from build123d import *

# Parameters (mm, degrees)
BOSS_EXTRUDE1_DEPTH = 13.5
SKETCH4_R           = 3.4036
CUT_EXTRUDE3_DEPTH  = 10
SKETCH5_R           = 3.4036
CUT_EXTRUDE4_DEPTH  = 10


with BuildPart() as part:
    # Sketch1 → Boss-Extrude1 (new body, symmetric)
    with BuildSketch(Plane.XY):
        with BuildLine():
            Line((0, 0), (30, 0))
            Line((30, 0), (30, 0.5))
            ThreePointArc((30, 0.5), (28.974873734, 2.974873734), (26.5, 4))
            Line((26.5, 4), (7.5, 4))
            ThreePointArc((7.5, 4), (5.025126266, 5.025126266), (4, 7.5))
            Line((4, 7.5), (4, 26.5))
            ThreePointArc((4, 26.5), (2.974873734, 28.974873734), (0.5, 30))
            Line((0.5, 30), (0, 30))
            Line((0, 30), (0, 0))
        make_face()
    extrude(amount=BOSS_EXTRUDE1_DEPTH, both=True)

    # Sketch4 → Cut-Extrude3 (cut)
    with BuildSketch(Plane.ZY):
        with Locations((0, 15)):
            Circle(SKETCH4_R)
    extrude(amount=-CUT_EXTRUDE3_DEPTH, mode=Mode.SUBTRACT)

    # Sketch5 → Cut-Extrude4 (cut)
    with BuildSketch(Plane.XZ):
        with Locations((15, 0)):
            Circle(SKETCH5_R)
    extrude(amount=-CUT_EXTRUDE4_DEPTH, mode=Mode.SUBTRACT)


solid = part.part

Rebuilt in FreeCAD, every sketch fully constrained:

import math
import FreeCAD as App
import Part
import Sketcher
from FreeCAD import Vector
Q = App.Units.Quantity

doc = App.newDocument("Part")
body = doc.addObject("PartDesign::Body", "Body")

# Sketch on XY plane
sketch1 = doc.addObject("Sketcher::SketchObject", "Sketch")
body.addObject(sketch1)
sketch1.AttachmentSupport = (doc.XY_Plane, [""])
sketch1.MapMode = "FlatFace"
sketch1.addGeometry([
    Part.LineSegment(Vector(0, 0, 0), Vector(30, 0, 0)),  # 0
    Part.LineSegment(Vector(30, 0, 0), Vector(30, 0.5, 0)),  # 1
    Part.ArcOfCircle(Part.Circle(Vector(26.5, 0.5, 0), Vector(0, 0, 1), 3.5), math.radians(0), math.radians(90)),  # 2
    Part.LineSegment(Vector(26.5, 4, 0), Vector(7.5, 4, 0)),  # 3
    Part.ArcOfCircle(Part.Circle(Vector(7.5, 7.5, 0), Vector(0, 0, 1), 3.5), math.radians(-180), math.radians(-90)),  # 4
    Part.LineSegment(Vector(4, 7.5, 0), Vector(4, 26.5, 0)),  # 5
    Part.ArcOfCircle(Part.Circle(Vector(0.5, 26.5, 0), Vector(0, 0, 1), 3.5), math.radians(0), math.radians(90)),  # 6
    Part.LineSegment(Vector(0.5, 30, 0), Vector(0, 30, 0)),  # 7
    Part.LineSegment(Vector(0, 30, 0), Vector(0, 0, 0)),  # 8
], False)
sketch1.addConstraint([
    Sketcher.Constraint("Coincident", 0, 2, 1, 1),
    Sketcher.Constraint("Tangent", 1, 2, 2, 1),
    Sketcher.Constraint("Tangent", 2, 2, 3, 1),
    Sketcher.Constraint("Tangent", 3, 2, 4, 2),
    Sketcher.Constraint("Tangent", 4, 1, 5, 1),
    Sketcher.Constraint("Tangent", 5, 2, 6, 1),
    Sketcher.Constraint("Tangent", 6, 2, 7, 1),
    Sketcher.Constraint("Coincident", 7, 2, 8, 1),
    Sketcher.Constraint("Coincident", 8, 2, 0, 1),
    Sketcher.Constraint("Horizontal", 0),
    Sketcher.Constraint("Vertical", 1),
    Sketcher.Constraint("Horizontal", 3),
    Sketcher.Constraint("Vertical", 5),
    Sketcher.Constraint("Horizontal", 7),
    Sketcher.Constraint("Vertical", 8),
    Sketcher.Constraint("Coincident", 8, 2, -1, 1),
    Sketcher.Constraint("Equal", 2, 4),
    Sketcher.Constraint("Equal", 4, 6),
    Sketcher.Constraint("Equal", 7, 1),
    Sketcher.Constraint("Equal", 3, 5),
    Sketcher.Constraint("Radius", 2, Q("3.5 mm")),
    Sketcher.Constraint("DistanceX", 0, 1, 0, 2, Q("30 mm")),
    Sketcher.Constraint("DistanceX", 3, 2, 3, 1, Q("19 mm")),
])
pad1 = doc.addObject("PartDesign::Pad", "Pad")
body.addObject(pad1)
pad1.Profile = sketch1
pad1.Length = 27
pad1.Midplane = True

# Sketch on YZ plane
sketch2 = doc.addObject("Sketcher::SketchObject", "Sketch001")
body.addObject(sketch2)
sketch2.AttachmentSupport = (doc.YZ_Plane, [""])
sketch2.MapMode = "FlatFace"
sketch2.addGeometry(Part.Circle(Vector(15, 0, 0), Vector(0, 0, 1), 3.4036), False)
sketch2.addConstraint([
    Sketcher.Constraint("PointOnObject", 0, 3, -1),
    Sketcher.Constraint("DistanceX", -1, 1, 0, 3, Q("15 mm")),
    Sketcher.Constraint("Diameter", 0, Q("6.8072 mm")),
])
pocket1 = doc.addObject("PartDesign::Pocket", "Pocket")
body.addObject(pocket1)
pocket1.Profile = sketch2
pocket1.Length = 10
pocket1.Reversed = True

# Sketch on XZ plane
sketch3 = doc.addObject("Sketcher::SketchObject", "Sketch002")
body.addObject(sketch3)
sketch3.AttachmentSupport = (doc.XZ_Plane, [""])
sketch3.MapMode = "FlatFace"
sketch3.addGeometry(Part.Circle(Vector(15, 0, 0), Vector(0, 0, 1), 3.4036), False)
sketch3.addConstraint([
    Sketcher.Constraint("PointOnObject", 0, 3, -1),
    Sketcher.Constraint("DistanceX", -1, 1, 0, 3, Q("15 mm")),
    Sketcher.Constraint("Diameter", 0, Q("6.8072 mm")),
])
pocket2 = doc.addObject("PartDesign::Pocket", "Pocket001")
body.addObject(pocket2)
pocket2.Profile = sketch3
pocket2.Length = 10

doc.recompute()
